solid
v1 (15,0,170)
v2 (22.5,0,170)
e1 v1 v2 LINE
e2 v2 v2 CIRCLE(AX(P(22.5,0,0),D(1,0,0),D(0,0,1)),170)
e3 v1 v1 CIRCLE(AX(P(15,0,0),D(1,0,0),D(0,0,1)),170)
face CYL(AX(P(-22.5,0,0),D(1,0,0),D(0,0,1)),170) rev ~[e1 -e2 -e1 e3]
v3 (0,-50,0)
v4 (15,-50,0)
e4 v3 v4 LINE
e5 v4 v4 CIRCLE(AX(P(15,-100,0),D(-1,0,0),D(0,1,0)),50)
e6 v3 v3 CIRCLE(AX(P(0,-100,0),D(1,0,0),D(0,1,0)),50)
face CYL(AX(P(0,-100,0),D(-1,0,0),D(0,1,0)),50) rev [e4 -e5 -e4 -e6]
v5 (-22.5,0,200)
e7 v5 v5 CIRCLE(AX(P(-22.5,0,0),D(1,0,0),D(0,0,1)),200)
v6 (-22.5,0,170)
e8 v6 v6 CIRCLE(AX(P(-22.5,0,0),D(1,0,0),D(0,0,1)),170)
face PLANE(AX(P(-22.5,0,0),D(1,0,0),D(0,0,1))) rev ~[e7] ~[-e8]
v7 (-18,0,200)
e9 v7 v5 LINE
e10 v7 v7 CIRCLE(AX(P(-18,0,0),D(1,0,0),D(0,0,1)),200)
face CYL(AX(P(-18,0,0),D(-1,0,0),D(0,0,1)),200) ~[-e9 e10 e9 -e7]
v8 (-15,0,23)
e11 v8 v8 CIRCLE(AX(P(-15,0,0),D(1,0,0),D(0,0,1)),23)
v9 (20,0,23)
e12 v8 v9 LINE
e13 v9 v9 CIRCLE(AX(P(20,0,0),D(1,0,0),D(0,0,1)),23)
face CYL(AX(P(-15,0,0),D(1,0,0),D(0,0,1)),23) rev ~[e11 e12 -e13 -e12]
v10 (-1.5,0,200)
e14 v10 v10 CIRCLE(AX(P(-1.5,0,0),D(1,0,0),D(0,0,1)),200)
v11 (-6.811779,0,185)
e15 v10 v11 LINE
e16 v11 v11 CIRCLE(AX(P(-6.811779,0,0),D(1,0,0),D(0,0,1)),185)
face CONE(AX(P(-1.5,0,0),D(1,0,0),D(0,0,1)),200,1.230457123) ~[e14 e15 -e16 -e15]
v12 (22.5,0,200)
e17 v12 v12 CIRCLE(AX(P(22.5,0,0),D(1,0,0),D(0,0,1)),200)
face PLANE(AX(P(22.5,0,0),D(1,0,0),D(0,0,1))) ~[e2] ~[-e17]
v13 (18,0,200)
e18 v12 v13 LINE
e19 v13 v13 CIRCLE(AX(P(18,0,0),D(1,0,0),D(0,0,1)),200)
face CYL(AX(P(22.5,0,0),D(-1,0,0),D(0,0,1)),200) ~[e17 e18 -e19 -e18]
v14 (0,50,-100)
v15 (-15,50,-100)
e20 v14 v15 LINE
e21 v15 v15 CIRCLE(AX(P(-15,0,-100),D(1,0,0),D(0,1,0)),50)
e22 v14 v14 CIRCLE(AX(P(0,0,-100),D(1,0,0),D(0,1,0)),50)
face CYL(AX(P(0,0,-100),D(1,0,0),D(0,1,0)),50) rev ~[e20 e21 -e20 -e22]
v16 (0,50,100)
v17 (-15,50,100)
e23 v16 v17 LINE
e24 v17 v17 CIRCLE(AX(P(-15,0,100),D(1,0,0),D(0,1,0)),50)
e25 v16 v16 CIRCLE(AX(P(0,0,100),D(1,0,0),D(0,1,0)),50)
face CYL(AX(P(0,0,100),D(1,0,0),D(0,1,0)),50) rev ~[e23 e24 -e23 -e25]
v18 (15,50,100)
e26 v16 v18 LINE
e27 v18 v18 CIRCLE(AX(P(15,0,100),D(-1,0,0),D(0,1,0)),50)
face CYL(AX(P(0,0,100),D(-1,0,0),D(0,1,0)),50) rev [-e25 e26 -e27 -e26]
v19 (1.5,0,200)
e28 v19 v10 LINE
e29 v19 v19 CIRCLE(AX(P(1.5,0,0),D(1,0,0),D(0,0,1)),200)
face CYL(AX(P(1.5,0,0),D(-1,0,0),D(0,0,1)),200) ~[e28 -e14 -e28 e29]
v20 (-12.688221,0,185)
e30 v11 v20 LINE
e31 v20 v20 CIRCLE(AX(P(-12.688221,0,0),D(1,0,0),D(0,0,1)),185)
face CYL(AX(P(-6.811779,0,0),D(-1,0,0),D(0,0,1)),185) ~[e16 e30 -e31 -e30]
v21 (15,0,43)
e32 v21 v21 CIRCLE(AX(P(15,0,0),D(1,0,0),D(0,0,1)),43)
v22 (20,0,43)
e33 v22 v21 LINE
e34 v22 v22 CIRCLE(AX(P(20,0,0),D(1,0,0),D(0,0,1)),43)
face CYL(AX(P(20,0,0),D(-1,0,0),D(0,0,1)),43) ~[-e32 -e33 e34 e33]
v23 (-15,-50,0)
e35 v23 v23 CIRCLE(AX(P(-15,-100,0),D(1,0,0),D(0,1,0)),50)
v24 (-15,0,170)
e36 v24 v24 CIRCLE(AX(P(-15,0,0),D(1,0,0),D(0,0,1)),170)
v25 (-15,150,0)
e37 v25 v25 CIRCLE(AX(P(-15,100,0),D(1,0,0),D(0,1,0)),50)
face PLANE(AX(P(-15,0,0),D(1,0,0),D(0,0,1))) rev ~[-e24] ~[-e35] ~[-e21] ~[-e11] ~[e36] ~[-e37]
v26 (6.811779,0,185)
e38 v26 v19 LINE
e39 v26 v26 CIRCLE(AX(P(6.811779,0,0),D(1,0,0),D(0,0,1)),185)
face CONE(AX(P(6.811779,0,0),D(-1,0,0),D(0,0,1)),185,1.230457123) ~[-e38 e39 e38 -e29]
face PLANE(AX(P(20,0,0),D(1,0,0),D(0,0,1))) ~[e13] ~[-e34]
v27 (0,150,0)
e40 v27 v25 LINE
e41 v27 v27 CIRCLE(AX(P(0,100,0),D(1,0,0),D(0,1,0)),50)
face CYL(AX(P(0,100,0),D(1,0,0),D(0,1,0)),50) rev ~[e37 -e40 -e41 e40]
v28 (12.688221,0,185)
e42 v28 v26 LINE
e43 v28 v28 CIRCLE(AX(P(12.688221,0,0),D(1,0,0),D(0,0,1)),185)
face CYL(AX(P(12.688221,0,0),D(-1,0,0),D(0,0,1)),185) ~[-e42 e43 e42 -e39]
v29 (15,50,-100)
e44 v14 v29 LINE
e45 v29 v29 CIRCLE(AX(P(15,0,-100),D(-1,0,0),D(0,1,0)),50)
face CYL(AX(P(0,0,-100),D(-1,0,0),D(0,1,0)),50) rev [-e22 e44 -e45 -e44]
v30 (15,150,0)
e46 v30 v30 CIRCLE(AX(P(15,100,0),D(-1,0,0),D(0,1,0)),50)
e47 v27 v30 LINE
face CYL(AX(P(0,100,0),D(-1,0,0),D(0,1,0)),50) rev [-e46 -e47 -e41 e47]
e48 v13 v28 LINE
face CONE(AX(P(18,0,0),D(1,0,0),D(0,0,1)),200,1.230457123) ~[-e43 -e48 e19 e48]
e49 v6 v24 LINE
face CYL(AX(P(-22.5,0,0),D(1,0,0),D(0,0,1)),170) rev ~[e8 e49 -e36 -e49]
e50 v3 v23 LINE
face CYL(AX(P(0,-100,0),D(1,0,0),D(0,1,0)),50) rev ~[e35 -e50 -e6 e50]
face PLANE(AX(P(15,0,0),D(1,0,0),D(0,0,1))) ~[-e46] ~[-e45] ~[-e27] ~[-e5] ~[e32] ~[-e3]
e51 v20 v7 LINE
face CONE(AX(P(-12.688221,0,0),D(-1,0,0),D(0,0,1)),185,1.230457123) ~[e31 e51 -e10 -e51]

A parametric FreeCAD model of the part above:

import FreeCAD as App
import Part
import Sketcher
Q = App.Units.Quantity

doc = App.newDocument("Part")
body = doc.addObject("PartDesign::Body", "Body")

sketch1 = body.newObject("Sketcher::SketchObject", "Sketch")
sketch1.AttachmentSupport = (doc.getObject("XZ_Plane"), [""])
sketch1.MapMode = "FlatFace"
sketch1.addGeometry([
    Part.LineSegment(App.Vector(22.5, 170, 0), App.Vector(22.5, 200, 0)),
    Part.LineSegment(App.Vector(22.5, 200, 0), App.Vector(18, 200, 0)),
    Part.LineSegment(App.Vector(18, 200, 0), App.Vector(12.688221, 185, 0)),
    Part.LineSegment(App.Vector(12.688221, 185, 0), App.Vector(6.811779, 185, 0)),
    Part.LineSegment(App.Vector(6.811779, 185, 0), App.Vector(1.5, 200, 0)),
    Part.LineSegment(App.Vector(1.5, 200, 0), App.Vector(-1.5, 200, 0)),
    Part.LineSegment(App.Vector(-1.5, 200, 0), App.Vector(-6.811779, 185, 0)),
    Part.LineSegment(App.Vector(-6.811779, 185, 0), App.Vector(-12.688221, 185, 0)),
    Part.LineSegment(App.Vector(-12.688221, 185, 0), App.Vector(-18, 200, 0)),
    Part.LineSegment(App.Vector(-18, 200, 0), App.Vector(-22.5, 200, 0)),
    Part.LineSegment(App.Vector(-22.5, 200, 0), App.Vector(-22.5, 170, 0)),
    Part.LineSegment(App.Vector(-22.5, 170, 0), App.Vector(-15, 170, 0)),
    Part.LineSegment(App.Vector(-15, 170, 0), App.Vector(-15, 23, 0)),
    Part.LineSegment(App.Vector(-15, 23, 0), App.Vector(20, 23, 0)),
    Part.LineSegment(App.Vector(20, 23, 0), App.Vector(20, 43, 0)),
    Part.LineSegment(App.Vector(20, 43, 0), App.Vector(15, 43, 0)),
    Part.LineSegment(App.Vector(15, 43, 0), App.Vector(15, 170, 0)),
    Part.LineSegment(App.Vector(15, 170, 0), App.Vector(22.5, 170, 0)),
], False)
sketch1.addConstraint([
    Sketcher.Constraint("Coincident", 0, 2, 1, 1),
    Sketcher.Constraint("Coincident", 1, 2, 2, 1),
    Sketcher.Constraint("Coincident", 2, 2, 3, 1),
    Sketcher.Constraint("Coincident", 3, 2, 4, 1),
    Sketcher.Constraint("Coincident", 4, 2, 5, 1),
    Sketcher.Constraint("Coincident", 5, 2, 6, 1),
    Sketcher.Constraint("Coincident", 6, 2, 7, 1),
    Sketcher.Constraint("Coincident", 7, 2, 8, 1),
    Sketcher.Constraint("Coincident", 8, 2, 9, 1),
    Sketcher.Constraint("Coincident", 9, 2, 10, 1),
    Sketcher.Constraint("Coincident", 10, 2, 11, 1),
    Sketcher.Constraint("Coincident", 11, 2, 12, 1),
    Sketcher.Constraint("Coincident", 12, 2, 13, 1),
    Sketcher.Constraint("Coincident", 13, 2, 14, 1),
    Sketcher.Constraint("Coincident", 14, 2, 15, 1),
    Sketcher.Constraint("Coincident", 15, 2, 16, 1),
    Sketcher.Constraint("Coincident", 16, 2, 17, 1),
    Sketcher.Constraint("Coincident", 17, 2, 0, 1),
    Sketcher.Constraint("Vertical", 0),
    Sketcher.Constraint("Horizontal", 1),
    Sketcher.Constraint("Horizontal", 3),
    Sketcher.Constraint("Horizontal", 5),
    Sketcher.Constraint("Horizontal", 7),
    Sketcher.Constraint("Horizontal", 9),
    Sketcher.Constraint("Vertical", 10),
    Sketcher.Constraint("Horizontal", 11),
    Sketcher.Constraint("Vertical", 12),
    Sketcher.Constraint("Horizontal", 13),
    Sketcher.Constraint("Vertical", 14),
    Sketcher.Constraint("Horizontal", 15),
    Sketcher.Constraint("Vertical", 16),
    Sketcher.Constraint("Horizontal", 17),
    Sketcher.Constraint("Symmetric", 3, 2, 6, 2, -2),
    Sketcher.Constraint("Symmetric", 1, 2, 8, 2, -2),
    Sketcher.Constraint("Symmetric", 11, 2, 16, 2, -2),
    Sketcher.Constraint("Parallel", 2, 6),
    Sketcher.Constraint("Parallel", 4, 8),
    Sketcher.Constraint("Horizontal", 1, 2, 4, 2),
    Sketcher.Constraint("Equal", 3, 7),
    Sketcher.Constraint("Equal", 1, 9),
    Sketcher.Constraint("DistanceX", 5, 2, 5, 1, Q("3 mm")),
    Sketcher.Constraint("DistanceX", 13, 1, 13, 2, Q("35 mm")),
    Sketcher.Constraint("DistanceX", 15, 2, 15, 1, Q("5 mm")),
    Sketcher.Constraint("DistanceY", 0, 1, 0, 2, Q("30 mm")),
    Sketcher.Constraint("DistanceY", 12, 2, 12, 1, Q("147 mm")),
    Sketcher.Constraint("DistanceY", 14, 1, 14, 2, Q("20 mm")),
    Sketcher.Constraint("DistanceX", 1, 2, 1, 1, Q("4.5 mm")),
    Sketcher.Constraint("DistanceX", 11, 1, 11, 2, Q("7.5 mm")),
    Sketcher.Constraint("DistanceY", -1, 1, 0, 2, Q("200 mm")),
    Sketcher.Constraint("DistanceY", -1, 1, 2, 2, Q("185 mm")),
    Sketcher.Constraint("Angle", 2, Q("-109.5 deg")),
])
revolution = body.newObject("PartDesign::Revolution", "Revolution")
revolution.Profile = sketch1
revolution.ReferenceAxis = (sketch1, ["H_Axis"])
revolution.Angle = 360

sketch2 = body.newObject("Sketcher::SketchObject", "Sketch001")
sketch2.AttachmentSupport = (doc.getObject("YZ_Plane"), [""])
sketch2.MapMode = "FlatFace"
sketch2.addGeometry([
    Part.Circle(App.Vector(0, -100, 0), App.Vector(0, 0, 1), 50),
    Part.Circle(App.Vector(100, 0, 0), App.Vector(0, 0, 1), 50),
    Part.Circle(App.Vector(-100, 0, 0), App.Vector(0, 0, 1), 50),
    Part.Circle(App.Vector(0, 100, 0), App.Vector(0, 0, 1), 50),
], False)
sketch2.addConstraint([
    Sketcher.Constraint("Equal", 0, 1),
    Sketcher.Constraint("Equal", 1, 2),
    Sketcher.Constraint("Equal", 2, 3),
    Sketcher.Constraint("Symmetric", 1, 3, 2, 3, -1, 1),
    Sketcher.Constraint("Symmetric", 0, 3, 3, 3, -1, 1),
    Sketcher.Constraint("PointOnObject", 0, 3, -2),
    Sketcher.Constraint("PointOnObject", 1, 3, -1),
    Sketcher.Constraint("Diameter", 0, Q("100 mm")),
    Sketcher.Constraint("DistanceY", 0, 3, -1, 1, Q("100 mm")),
    Sketcher.Constraint("DistanceX", -1, 1, 1, 3, Q("100 mm")),
])
pocket1 = body.newObject("PartDesign::Pocket", "Pocket")
pocket1.Profile = sketch2
pocket1.Type = "ThroughAll"
pocket1.Midplane = True

doc.recompute()
